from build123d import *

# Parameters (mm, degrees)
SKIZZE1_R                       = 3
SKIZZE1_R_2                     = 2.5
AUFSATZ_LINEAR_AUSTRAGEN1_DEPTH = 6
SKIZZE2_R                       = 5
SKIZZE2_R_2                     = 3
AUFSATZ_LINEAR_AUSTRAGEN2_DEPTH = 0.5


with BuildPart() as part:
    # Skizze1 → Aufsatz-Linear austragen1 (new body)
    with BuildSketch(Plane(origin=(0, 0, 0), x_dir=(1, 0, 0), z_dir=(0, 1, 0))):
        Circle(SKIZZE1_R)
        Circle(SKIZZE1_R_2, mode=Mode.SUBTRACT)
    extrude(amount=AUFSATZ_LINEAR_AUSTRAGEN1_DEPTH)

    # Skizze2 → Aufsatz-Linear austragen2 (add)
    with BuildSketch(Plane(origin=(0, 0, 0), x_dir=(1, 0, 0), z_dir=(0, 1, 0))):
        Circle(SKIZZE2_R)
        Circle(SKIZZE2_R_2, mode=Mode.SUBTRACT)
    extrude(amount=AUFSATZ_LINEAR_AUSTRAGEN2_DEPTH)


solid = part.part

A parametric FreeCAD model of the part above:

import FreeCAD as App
import Part
import Sketcher
from FreeCAD import Vector
Q = App.Units.Quantity

doc = App.newDocument("Part")
body = doc.addObject("PartDesign::Body", "Body")

# Sketch on XZ plane
sketch1 = doc.addObject("Sketcher::SketchObject", "Sketch")
body.addObject(sketch1)
sketch1.AttachmentSupport = (doc.XZ_Plane, [""])
sketch1.MapMode = "FlatFace"
sketch1.addGeometry(Part.Circle(Vector(0, 0, 0), Vector(0, 0, 1), 3), False)
sketch1.addGeometry(Part.Circle(Vector(0, 0, 0), Vector(0, 0, 1), 2.5), False)
sketch1.addConstraint(Sketcher.Constraint("Coincident", 0, 3, -1, 1))
sketch1.addConstraint(Sketcher.Constraint("Coincident", 1, 3, -1, 1))
sketch1.addConstraint(Sketcher.Constraint("Diameter", 0, Q("6 mm")))
sketch1.addConstraint(Sketcher.Constraint("Diameter", 1, Q("5 mm")))
pad1 = doc.addObject("PartDesign::Pad", "Pad")
body.addObject(pad1)
pad1.Profile = sketch1
pad1.Length = 6
pad1.Reversed = True

# Sketch on XZ plane
sketch2 = doc.addObject("Sketcher::SketchObject", "Sketch001")
body.addObject(sketch2)
sketch2.AttachmentSupport = (doc.XZ_Plane, [""])
sketch2.MapMode = "FlatFace"
sketch2.addGeometry(Part.Circle(Vector(0, 0, 0), Vector(0, 0, 1), 5), False)
sketch2.addGeometry(Part.Circle(Vector(0, 0, 0), Vector(0, 0, 1), 3), False)
sketch2.addConstraint(Sketcher.Constraint("Coincident", 0, 3, -1, 1))
sketch2.addConstraint(Sketcher.Constraint("Coincident", 1, 3, -1, 1))
sketch2.addConstraint(Sketcher.Constraint("Diameter", 0, Q("10 mm")))
sketch2.addConstraint(Sketcher.Constraint("Diameter", 1, Q("6 mm")))
pad2 = doc.addObject("PartDesign::Pad", "Pad001")
body.addObject(pad2)
pad2.Profile = sketch2
pad2.Length = 0.5
pad2.Reversed = True

doc.recompute()
